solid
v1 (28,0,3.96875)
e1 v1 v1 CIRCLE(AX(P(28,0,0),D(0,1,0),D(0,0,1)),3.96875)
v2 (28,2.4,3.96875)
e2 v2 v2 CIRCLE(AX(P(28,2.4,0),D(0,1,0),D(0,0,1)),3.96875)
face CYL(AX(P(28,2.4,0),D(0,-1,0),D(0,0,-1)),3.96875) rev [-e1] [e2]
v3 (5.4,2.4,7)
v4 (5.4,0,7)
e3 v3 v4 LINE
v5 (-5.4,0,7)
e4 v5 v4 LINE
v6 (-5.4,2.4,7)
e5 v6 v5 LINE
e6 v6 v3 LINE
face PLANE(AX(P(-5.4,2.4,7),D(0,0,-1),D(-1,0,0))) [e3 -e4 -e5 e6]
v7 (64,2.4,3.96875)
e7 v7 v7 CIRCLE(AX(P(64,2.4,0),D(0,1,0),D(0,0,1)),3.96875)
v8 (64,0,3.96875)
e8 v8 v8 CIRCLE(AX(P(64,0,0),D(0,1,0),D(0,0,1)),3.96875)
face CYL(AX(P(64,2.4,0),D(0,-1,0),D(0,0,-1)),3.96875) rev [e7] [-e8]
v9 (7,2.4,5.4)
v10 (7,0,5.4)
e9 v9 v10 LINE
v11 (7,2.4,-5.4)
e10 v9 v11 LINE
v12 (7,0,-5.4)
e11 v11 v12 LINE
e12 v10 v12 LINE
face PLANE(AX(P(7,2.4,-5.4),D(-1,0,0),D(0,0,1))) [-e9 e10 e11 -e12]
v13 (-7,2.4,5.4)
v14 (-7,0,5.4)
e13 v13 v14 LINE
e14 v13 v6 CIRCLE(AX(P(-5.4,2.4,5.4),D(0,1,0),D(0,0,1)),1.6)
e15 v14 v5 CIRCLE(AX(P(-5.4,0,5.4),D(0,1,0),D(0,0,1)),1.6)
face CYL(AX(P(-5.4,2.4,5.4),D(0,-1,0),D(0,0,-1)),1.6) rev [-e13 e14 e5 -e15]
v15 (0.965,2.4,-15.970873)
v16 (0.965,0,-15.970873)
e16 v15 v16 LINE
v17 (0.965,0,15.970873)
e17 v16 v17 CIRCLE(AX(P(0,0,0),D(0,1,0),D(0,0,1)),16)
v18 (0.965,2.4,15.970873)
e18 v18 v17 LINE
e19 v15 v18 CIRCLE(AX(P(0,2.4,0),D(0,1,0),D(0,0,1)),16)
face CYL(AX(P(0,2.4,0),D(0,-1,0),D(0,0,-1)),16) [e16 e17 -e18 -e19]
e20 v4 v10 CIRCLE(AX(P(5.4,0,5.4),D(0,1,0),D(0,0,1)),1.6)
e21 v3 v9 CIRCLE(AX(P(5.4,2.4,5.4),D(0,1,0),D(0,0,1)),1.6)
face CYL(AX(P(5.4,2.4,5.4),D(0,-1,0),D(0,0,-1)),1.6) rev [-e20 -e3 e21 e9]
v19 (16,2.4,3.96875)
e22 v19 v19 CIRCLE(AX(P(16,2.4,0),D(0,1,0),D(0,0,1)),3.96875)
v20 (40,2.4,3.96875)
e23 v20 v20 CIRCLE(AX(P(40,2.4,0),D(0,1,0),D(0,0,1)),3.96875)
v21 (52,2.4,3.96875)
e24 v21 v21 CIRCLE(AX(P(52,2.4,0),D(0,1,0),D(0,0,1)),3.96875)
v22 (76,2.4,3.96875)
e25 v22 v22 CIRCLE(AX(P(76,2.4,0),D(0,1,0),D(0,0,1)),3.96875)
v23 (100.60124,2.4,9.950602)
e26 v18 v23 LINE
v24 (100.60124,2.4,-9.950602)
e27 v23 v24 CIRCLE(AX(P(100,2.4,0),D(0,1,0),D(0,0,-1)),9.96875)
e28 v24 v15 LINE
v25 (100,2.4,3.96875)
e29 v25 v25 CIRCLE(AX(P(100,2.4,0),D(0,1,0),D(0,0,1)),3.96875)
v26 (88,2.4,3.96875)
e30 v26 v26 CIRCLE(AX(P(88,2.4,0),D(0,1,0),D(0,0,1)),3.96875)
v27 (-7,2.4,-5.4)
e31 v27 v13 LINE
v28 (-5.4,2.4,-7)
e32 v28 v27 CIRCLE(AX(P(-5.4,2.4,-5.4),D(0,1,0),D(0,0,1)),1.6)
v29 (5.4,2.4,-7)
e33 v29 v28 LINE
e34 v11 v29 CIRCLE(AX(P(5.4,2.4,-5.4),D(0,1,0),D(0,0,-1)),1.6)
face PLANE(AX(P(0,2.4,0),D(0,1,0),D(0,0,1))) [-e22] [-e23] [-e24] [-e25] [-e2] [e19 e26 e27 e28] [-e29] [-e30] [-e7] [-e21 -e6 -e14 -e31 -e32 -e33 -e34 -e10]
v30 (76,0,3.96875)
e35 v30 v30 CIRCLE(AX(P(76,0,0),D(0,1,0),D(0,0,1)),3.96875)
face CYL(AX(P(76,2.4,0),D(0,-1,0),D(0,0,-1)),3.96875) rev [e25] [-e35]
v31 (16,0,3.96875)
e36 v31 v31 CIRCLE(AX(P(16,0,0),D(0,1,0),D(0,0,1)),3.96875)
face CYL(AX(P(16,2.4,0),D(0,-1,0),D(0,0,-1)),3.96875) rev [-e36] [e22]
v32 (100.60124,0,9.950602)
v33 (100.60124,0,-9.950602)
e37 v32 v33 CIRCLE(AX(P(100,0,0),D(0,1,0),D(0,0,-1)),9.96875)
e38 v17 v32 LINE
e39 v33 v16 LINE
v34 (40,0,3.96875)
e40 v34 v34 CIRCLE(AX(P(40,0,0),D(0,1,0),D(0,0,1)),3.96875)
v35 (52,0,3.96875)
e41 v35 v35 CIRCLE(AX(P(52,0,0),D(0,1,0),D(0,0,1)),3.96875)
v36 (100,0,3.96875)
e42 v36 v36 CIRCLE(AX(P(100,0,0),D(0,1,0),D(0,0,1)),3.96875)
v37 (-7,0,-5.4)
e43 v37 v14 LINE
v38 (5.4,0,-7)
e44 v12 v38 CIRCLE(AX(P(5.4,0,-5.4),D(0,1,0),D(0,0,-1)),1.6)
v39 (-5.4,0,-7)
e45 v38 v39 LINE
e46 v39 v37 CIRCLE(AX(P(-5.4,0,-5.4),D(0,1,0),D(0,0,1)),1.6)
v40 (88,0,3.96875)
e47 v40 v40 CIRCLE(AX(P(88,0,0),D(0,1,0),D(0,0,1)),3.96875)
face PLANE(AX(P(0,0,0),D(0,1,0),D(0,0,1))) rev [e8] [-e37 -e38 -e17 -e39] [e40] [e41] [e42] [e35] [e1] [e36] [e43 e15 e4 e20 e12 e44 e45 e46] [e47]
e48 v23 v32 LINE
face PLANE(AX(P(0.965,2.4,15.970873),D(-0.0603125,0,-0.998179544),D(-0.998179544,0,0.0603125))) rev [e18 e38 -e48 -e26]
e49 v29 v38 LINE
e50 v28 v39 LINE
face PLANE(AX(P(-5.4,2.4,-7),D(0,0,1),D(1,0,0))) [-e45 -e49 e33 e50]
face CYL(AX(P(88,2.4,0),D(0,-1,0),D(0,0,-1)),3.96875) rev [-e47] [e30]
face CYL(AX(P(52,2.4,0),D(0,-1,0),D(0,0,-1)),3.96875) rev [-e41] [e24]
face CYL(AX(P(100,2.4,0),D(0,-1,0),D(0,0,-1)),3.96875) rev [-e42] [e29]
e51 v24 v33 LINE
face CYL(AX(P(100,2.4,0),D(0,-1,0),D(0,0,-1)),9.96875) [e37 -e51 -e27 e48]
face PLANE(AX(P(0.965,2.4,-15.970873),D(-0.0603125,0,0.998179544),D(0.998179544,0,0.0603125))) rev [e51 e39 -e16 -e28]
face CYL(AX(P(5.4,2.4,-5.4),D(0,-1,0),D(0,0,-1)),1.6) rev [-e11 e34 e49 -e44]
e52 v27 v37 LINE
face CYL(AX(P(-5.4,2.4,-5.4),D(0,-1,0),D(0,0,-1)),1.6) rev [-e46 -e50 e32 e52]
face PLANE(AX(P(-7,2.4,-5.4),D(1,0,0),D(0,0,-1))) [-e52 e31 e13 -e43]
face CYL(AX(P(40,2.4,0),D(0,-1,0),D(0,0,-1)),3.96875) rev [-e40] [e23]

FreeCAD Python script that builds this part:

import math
import FreeCAD as App
import Part
import Sketcher

doc = App.newDocument("Part")
body = doc.addObject("PartDesign::Body", "Body")

# Sketch on XZ plane
sketch1 = body.newObject("Sketcher::SketchObject", "Sketch")
sketch1.AttachmentSupport = (doc.getObject("XZ_Plane"), [""])
sketch1.MapMode = "FlatFace"
sketch1.addGeometry([
    Part.LineSegment(App.Vector(100.6, -10, 0), App.Vector(1, -16, 0)),  # 0
    Part.ArcOfCircle(Part.Circle(App.Vector(0, 0, 0), App.Vector(0, 0, 1), 16), math.radians(87), math.radians(273)),  # 1
    Part.LineSegment(App.Vector(1, 16, 0), App.Vector(100.6, 10, 0)),  # 2
    Part.ArcOfCircle(Part.Circle(App.Vector(100, 0, 0), App.Vector(0, 0, 1), 10), math.radians(-87), math.radians(87)),  # 3
    Part.Circle(App.Vector(100, 0, 0), App.Vector(0, 0, 1), 4),  # 4
    Part.Circle(App.Vector(88, 0, 0), App.Vector(0, 0, 1), 4),  # 5
    Part.Circle(App.Vector(76, 0, 0), App.Vector(0, 0, 1), 4),  # 6
    Part.Circle(App.Vector(64, 0, 0), App.Vector(0, 0, 1), 4),  # 7
    Part.Circle(App.Vector(52, 0, 0), App.Vector(0, 0, 1), 4),  # 8
    Part.Circle(App.Vector(40, 0, 0), App.Vector(0, 0, 1), 4),  # 9
    Part.Circle(App.Vector(28, 0, 0), App.Vector(0, 0, 1), 4),  # 10
    Part.Circle(App.Vector(16, 0, 0), App.Vector(0, 0, 1), 4),  # 11
    Part.LineSegment(App.Vector(-5.4, -7, 0), App.Vector(5.4, -7, 0)),  # 12
    Part.ArcOfCircle(Part.Circle(App.Vector(5.4, -5.4, 0), App.Vector(0, 0, 1), 1.6), math.radians(-90), math.radians(0)),  # 13
    Part.LineSegment(App.Vector(7, -5.4, 0), App.Vector(7, 5.4, 0)),  # 14
    Part.ArcOfCircle(Part.Circle(App.Vector(5.4, 5.4, 0), App.Vector(0, 0, 1), 1.6), math.radians(0), math.radians(90)),  # 15
    Part.LineSegment(App.Vector(5.4, 7, 0), App.Vector(-5.4, 7, 0)),  # 16
    Part.ArcOfCircle(Part.Circle(App.Vector(-5.4, 5.4, 0), App.Vector(0, 0, 1), 1.6), math.radians(90), math.radians(180)),  # 17
    Part.LineSegment(App.Vector(-7, 5.4, 0), App.Vector(-7, -5.4, 0)),  # 18
    Part.ArcOfCircle(Part.Circle(App.Vector(-5.4, -5.4, 0), App.Vector(0, 0, 1), 1.6), math.radians(180), math.radians(270)),  # 19
], False)
sketch1.addConstraint([
    Sketcher.Constraint("Tangent", 0, 2, 1, 2),
    Sketcher.Constraint("Tangent", 1, 1, 2, 1),
    Sketcher.Constraint("Tangent", 2, 2, 3, 2),
    Sketcher.Constraint("Tangent", 3, 1, 0, 1),
    Sketcher.Constraint("Tangent", 12, 2, 13, 1),
    Sketcher.Constraint("Tangent", 13, 2, 14, 1),
    Sketcher.Constraint("Tangent", 14, 2, 15, 1),
    Sketcher.Constraint("Tangent", 15, 2, 16, 1),
    Sketcher.Constraint("Tangent", 16, 2, 17, 1),
    Sketcher.Constraint("Tangent", 17, 2, 18, 1),
    Sketcher.Constraint("Tangent", 18, 2, 19, 1),
    Sketcher.Constraint("Tangent", 19, 2, 12, 1),
    Sketcher.Constraint("Horizontal", 12),
    Sketcher.Constraint("Vertical", 14),
    Sketcher.Constraint("Horizontal", 16),
    Sketcher.Constraint("Vertical", 18),
    Sketcher.Constraint("Coincident", 1, 3, -1, 1),
    Sketcher.Constraint("Coincident", 4, 3, 3, 3),
    Sketcher.Constraint("Equal", 4, 5),
    Sketcher.Constraint("Equal", 5, 6),
    Sketcher.Constraint("Equal", 6, 7),
    Sketcher.Constraint("Equal", 7, 8),
    Sketcher.Constraint("Equal", 8, 9),
    Sketcher.Constraint("Equal", 9, 10),
    Sketcher.Constraint("Equal", 10, 11),
    Sketcher.Constraint("Equal", 13, 15),
    Sketcher.Constraint("Equal", 15, 17),
    Sketcher.Constraint("Equal", 17, 19),
    Sketcher.Constraint("Symmetric", 13, 3, 17, 3, -1, 1),
    Sketcher.Constraint("PointOnObject", 3, 3, -1),
    Sketcher.Constraint("PointOnObject", 5, 3, -1),
    Sketcher.Constraint("PointOnObject", 6, 3, -1),
    Sketcher.Constraint("PointOnObject", 7, 3, -1),
    Sketcher.Constraint("PointOnObject", 8, 3, -1),
    Sketcher.Constraint("PointOnObject", 9, 3, -1),
    Sketcher.Constraint("PointOnObject", 10, 3, -1),
    Sketcher.Constraint("PointOnObject", 11, 3, -1),
    Sketcher.Constraint("Equal", 16, 14),
    Sketcher.Constraint("Radius", 1, 16.0),
    Sketcher.Constraint("Radius", 13, 1.6),
    Sketcher.Constraint("DistanceX", 12, 1, 12, 2, 10.8),
    Sketcher.Constraint("DistanceX", -1, 1, 3, 3, 100.0),
    Sketcher.Constraint("DistanceX", -1, 1, 5, 3, 88.0),
    Sketcher.Constraint("DistanceX", -1, 1, 6, 3, 76.0),
    Sketcher.Constraint("DistanceX", -1, 1, 7, 3, 64.0),
    Sketcher.Constraint("DistanceX", -1, 1, 8, 3, 52.0),
    Sketcher.Constraint("DistanceX", -1, 1, 9, 3, 40.0),
    Sketcher.Constraint("DistanceX", -1, 1, 10, 3, 28.0),
    Sketcher.Constraint("DistanceX", -1, 1, 11, 3, 16.0),
    Sketcher.Constraint("Diameter", 4, 7.9375),
    Sketcher.Constraint("Radius", 3, 9.96875),
])
pad1 = body.newObject("PartDesign::Pad", "Pad")
pad1.Profile = sketch1
pad1.Length = 2.4
pad1.Reversed = True

doc.recompute()
